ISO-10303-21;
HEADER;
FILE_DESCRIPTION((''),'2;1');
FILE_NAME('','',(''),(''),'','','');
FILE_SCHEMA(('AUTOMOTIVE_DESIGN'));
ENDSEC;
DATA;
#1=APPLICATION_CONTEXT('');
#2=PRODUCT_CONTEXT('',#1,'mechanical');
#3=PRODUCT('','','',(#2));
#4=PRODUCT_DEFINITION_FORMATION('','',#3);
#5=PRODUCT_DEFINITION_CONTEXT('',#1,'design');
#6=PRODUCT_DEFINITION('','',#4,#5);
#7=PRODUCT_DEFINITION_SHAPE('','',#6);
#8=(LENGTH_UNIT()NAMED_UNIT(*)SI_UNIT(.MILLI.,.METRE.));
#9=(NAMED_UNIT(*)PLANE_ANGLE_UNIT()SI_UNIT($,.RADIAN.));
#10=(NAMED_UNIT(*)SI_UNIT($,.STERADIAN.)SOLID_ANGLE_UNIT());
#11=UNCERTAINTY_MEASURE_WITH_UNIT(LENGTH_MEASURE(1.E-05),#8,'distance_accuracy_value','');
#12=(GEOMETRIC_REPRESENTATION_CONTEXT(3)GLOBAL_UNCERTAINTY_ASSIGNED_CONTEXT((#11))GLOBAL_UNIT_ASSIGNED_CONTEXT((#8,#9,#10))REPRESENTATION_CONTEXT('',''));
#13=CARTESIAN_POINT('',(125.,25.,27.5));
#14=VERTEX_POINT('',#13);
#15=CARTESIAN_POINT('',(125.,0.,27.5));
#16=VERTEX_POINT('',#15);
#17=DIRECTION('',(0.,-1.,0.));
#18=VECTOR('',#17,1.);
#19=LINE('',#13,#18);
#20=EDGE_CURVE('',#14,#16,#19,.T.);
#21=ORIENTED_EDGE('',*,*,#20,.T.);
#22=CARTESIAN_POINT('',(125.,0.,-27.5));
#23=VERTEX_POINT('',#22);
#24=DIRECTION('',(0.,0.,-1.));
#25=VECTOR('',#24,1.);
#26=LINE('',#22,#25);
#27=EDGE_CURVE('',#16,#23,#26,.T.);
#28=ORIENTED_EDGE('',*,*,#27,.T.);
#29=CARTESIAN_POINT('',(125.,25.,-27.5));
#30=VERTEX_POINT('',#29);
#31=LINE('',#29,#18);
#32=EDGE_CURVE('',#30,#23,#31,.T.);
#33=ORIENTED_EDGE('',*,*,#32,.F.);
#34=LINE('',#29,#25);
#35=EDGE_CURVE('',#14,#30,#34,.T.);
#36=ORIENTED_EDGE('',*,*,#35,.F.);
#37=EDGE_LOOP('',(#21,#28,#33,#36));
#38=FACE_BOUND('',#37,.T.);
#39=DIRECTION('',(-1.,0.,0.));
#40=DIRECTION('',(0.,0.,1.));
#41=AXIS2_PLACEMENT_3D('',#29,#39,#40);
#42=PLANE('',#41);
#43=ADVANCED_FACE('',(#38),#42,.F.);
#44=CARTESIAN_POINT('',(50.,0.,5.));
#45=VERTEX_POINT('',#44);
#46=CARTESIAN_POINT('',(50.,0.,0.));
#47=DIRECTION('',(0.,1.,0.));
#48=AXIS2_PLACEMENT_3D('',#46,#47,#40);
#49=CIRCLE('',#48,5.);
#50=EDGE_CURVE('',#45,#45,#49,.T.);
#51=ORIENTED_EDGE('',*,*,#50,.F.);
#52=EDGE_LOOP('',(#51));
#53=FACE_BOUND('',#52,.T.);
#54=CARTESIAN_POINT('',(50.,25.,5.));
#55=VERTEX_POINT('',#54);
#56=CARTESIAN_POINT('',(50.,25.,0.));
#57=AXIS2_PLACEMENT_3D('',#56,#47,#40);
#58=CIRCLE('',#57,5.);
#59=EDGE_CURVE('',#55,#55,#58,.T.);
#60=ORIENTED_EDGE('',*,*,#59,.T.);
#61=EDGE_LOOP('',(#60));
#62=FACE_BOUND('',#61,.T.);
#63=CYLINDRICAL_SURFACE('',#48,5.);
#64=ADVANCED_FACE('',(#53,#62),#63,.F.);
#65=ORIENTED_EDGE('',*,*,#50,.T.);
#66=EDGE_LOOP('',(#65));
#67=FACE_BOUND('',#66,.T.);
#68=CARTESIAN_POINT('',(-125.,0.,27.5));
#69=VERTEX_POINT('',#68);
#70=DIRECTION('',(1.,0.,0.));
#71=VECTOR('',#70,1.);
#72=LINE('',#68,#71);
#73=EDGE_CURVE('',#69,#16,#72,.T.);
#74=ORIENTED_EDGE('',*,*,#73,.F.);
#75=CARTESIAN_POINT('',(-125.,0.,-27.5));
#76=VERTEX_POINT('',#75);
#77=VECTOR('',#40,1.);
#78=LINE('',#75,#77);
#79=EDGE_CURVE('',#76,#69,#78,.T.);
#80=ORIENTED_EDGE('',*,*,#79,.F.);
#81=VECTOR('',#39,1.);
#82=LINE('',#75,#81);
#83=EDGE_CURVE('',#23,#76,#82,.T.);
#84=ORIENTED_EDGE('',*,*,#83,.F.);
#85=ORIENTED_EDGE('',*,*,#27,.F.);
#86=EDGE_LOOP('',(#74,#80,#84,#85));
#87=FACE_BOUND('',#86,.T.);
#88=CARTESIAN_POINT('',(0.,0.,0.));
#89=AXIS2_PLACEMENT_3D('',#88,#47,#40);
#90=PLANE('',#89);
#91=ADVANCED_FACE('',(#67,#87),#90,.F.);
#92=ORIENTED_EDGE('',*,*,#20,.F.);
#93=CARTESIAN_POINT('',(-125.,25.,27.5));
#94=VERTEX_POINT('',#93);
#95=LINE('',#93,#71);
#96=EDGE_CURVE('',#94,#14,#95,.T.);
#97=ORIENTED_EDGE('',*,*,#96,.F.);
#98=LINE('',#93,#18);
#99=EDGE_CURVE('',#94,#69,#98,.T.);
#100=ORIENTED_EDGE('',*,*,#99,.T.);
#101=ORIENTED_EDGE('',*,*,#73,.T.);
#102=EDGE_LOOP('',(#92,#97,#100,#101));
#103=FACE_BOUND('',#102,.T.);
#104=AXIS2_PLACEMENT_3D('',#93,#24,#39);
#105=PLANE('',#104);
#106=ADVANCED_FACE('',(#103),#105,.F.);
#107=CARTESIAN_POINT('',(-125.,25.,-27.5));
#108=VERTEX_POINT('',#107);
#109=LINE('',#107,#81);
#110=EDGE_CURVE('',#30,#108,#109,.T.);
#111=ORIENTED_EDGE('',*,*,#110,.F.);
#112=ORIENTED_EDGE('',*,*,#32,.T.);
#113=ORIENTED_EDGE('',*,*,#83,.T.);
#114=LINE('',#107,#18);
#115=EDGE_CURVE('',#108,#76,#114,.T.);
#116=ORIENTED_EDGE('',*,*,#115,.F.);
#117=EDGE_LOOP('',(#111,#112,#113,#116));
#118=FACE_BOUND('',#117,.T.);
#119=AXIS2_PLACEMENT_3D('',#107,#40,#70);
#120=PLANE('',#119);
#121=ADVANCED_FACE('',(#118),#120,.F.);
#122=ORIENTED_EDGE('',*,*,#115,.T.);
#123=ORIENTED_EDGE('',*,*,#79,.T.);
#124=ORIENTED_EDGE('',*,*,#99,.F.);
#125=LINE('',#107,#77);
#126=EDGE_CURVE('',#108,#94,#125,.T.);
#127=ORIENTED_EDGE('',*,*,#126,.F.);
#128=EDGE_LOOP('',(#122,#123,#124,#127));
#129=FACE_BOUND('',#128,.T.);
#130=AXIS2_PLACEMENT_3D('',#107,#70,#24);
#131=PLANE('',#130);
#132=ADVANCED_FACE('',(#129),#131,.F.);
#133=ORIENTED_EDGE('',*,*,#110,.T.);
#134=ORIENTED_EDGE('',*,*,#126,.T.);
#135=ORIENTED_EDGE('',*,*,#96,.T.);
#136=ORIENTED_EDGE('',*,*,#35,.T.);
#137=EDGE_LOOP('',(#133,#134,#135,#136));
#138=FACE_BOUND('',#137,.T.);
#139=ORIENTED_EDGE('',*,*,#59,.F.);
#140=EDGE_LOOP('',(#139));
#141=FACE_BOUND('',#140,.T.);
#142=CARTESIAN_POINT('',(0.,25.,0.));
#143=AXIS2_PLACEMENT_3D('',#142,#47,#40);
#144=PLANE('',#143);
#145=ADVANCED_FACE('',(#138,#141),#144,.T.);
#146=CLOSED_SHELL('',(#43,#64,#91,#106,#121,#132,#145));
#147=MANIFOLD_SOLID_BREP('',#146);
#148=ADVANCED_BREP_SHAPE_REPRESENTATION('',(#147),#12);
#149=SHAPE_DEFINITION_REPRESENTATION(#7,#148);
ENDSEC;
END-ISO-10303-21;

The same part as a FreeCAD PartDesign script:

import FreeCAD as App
import Part
import Sketcher
Q = App.Units.Quantity

doc = App.newDocument("Part")
body = doc.addObject("PartDesign::Body", "Body")

# Sketch on XZ plane
sketch1 = body.newObject("Sketcher::SketchObject", "Sketch")
sketch1.AttachmentSupport = (doc.getObject("XZ_Plane"), [""])
sketch1.MapMode = "FlatFace"
sketch1.addGeometry([
    Part.LineSegment(App.Vector(-125, -28, 0), App.Vector(-125, 28, 0)),
    Part.LineSegment(App.Vector(-125, 28, 0), App.Vector(125, 28, 0)),
    Part.LineSegment(App.Vector(125, 28, 0), App.Vector(125, -28, 0)),
    Part.LineSegment(App.Vector(125, -28, 0), App.Vector(-125, -28, 0)),
], False)
sketch1.addConstraint([
    Sketcher.Constraint("Coincident", 0, 2, 1, 1),
    Sketcher.Constraint("Coincident", 1, 2, 2, 1),
    Sketcher.Constraint("Coincident", 2, 2, 3, 1),
    Sketcher.Constraint("Coincident", 3, 2, 0, 1),
    Sketcher.Constraint("Vertical", 0),
    Sketcher.Constraint("Horizontal", 1),
    Sketcher.Constraint("Vertical", 2),
    Sketcher.Constraint("Horizontal", 3),
    Sketcher.Constraint("Symmetric", 0, 2, 2, 2, -1, 1),
    Sketcher.Constraint("DistanceX", 1, 1, 1, 2, Q("250 mm")),
    Sketcher.Constraint("DistanceY", 0, 1, 0, 2, Q("55 mm")),
])
pad1 = body.newObject("PartDesign::Pad", "Pad")
pad1.Profile = sketch1
pad1.Length = 25
pad1.Reversed = True

# Sketch on XZ plane
sketch2 = body.newObject("Sketcher::SketchObject", "Sketch001")
sketch2.AttachmentSupport = (doc.getObject("XZ_Plane"), [""])
sketch2.MapMode = "FlatFace"
sketch2.AttachmentOffset = App.Placement(App.Vector(0, 0, -25), App.Rotation())
sketch2.addGeometry(Part.Circle(App.Vector(50, 0, 0), App.Vector(0, 0, 1), 5), False)
sketch2.addConstraint([
    Sketcher.Constraint("PointOnObject", 0, 3, -1),
    Sketcher.Constraint("Diameter", 0, Q("10 mm")),
    Sketcher.Constraint("DistanceX", -1, 1, 0, 3, Q("50 mm")),
])
pocket1 = body.newObject("PartDesign::Pocket", "Pocket")
pocket1.Profile = sketch2
pocket1.Type = "ThroughAll"
pocket1.Reversed = True

doc.recompute()
